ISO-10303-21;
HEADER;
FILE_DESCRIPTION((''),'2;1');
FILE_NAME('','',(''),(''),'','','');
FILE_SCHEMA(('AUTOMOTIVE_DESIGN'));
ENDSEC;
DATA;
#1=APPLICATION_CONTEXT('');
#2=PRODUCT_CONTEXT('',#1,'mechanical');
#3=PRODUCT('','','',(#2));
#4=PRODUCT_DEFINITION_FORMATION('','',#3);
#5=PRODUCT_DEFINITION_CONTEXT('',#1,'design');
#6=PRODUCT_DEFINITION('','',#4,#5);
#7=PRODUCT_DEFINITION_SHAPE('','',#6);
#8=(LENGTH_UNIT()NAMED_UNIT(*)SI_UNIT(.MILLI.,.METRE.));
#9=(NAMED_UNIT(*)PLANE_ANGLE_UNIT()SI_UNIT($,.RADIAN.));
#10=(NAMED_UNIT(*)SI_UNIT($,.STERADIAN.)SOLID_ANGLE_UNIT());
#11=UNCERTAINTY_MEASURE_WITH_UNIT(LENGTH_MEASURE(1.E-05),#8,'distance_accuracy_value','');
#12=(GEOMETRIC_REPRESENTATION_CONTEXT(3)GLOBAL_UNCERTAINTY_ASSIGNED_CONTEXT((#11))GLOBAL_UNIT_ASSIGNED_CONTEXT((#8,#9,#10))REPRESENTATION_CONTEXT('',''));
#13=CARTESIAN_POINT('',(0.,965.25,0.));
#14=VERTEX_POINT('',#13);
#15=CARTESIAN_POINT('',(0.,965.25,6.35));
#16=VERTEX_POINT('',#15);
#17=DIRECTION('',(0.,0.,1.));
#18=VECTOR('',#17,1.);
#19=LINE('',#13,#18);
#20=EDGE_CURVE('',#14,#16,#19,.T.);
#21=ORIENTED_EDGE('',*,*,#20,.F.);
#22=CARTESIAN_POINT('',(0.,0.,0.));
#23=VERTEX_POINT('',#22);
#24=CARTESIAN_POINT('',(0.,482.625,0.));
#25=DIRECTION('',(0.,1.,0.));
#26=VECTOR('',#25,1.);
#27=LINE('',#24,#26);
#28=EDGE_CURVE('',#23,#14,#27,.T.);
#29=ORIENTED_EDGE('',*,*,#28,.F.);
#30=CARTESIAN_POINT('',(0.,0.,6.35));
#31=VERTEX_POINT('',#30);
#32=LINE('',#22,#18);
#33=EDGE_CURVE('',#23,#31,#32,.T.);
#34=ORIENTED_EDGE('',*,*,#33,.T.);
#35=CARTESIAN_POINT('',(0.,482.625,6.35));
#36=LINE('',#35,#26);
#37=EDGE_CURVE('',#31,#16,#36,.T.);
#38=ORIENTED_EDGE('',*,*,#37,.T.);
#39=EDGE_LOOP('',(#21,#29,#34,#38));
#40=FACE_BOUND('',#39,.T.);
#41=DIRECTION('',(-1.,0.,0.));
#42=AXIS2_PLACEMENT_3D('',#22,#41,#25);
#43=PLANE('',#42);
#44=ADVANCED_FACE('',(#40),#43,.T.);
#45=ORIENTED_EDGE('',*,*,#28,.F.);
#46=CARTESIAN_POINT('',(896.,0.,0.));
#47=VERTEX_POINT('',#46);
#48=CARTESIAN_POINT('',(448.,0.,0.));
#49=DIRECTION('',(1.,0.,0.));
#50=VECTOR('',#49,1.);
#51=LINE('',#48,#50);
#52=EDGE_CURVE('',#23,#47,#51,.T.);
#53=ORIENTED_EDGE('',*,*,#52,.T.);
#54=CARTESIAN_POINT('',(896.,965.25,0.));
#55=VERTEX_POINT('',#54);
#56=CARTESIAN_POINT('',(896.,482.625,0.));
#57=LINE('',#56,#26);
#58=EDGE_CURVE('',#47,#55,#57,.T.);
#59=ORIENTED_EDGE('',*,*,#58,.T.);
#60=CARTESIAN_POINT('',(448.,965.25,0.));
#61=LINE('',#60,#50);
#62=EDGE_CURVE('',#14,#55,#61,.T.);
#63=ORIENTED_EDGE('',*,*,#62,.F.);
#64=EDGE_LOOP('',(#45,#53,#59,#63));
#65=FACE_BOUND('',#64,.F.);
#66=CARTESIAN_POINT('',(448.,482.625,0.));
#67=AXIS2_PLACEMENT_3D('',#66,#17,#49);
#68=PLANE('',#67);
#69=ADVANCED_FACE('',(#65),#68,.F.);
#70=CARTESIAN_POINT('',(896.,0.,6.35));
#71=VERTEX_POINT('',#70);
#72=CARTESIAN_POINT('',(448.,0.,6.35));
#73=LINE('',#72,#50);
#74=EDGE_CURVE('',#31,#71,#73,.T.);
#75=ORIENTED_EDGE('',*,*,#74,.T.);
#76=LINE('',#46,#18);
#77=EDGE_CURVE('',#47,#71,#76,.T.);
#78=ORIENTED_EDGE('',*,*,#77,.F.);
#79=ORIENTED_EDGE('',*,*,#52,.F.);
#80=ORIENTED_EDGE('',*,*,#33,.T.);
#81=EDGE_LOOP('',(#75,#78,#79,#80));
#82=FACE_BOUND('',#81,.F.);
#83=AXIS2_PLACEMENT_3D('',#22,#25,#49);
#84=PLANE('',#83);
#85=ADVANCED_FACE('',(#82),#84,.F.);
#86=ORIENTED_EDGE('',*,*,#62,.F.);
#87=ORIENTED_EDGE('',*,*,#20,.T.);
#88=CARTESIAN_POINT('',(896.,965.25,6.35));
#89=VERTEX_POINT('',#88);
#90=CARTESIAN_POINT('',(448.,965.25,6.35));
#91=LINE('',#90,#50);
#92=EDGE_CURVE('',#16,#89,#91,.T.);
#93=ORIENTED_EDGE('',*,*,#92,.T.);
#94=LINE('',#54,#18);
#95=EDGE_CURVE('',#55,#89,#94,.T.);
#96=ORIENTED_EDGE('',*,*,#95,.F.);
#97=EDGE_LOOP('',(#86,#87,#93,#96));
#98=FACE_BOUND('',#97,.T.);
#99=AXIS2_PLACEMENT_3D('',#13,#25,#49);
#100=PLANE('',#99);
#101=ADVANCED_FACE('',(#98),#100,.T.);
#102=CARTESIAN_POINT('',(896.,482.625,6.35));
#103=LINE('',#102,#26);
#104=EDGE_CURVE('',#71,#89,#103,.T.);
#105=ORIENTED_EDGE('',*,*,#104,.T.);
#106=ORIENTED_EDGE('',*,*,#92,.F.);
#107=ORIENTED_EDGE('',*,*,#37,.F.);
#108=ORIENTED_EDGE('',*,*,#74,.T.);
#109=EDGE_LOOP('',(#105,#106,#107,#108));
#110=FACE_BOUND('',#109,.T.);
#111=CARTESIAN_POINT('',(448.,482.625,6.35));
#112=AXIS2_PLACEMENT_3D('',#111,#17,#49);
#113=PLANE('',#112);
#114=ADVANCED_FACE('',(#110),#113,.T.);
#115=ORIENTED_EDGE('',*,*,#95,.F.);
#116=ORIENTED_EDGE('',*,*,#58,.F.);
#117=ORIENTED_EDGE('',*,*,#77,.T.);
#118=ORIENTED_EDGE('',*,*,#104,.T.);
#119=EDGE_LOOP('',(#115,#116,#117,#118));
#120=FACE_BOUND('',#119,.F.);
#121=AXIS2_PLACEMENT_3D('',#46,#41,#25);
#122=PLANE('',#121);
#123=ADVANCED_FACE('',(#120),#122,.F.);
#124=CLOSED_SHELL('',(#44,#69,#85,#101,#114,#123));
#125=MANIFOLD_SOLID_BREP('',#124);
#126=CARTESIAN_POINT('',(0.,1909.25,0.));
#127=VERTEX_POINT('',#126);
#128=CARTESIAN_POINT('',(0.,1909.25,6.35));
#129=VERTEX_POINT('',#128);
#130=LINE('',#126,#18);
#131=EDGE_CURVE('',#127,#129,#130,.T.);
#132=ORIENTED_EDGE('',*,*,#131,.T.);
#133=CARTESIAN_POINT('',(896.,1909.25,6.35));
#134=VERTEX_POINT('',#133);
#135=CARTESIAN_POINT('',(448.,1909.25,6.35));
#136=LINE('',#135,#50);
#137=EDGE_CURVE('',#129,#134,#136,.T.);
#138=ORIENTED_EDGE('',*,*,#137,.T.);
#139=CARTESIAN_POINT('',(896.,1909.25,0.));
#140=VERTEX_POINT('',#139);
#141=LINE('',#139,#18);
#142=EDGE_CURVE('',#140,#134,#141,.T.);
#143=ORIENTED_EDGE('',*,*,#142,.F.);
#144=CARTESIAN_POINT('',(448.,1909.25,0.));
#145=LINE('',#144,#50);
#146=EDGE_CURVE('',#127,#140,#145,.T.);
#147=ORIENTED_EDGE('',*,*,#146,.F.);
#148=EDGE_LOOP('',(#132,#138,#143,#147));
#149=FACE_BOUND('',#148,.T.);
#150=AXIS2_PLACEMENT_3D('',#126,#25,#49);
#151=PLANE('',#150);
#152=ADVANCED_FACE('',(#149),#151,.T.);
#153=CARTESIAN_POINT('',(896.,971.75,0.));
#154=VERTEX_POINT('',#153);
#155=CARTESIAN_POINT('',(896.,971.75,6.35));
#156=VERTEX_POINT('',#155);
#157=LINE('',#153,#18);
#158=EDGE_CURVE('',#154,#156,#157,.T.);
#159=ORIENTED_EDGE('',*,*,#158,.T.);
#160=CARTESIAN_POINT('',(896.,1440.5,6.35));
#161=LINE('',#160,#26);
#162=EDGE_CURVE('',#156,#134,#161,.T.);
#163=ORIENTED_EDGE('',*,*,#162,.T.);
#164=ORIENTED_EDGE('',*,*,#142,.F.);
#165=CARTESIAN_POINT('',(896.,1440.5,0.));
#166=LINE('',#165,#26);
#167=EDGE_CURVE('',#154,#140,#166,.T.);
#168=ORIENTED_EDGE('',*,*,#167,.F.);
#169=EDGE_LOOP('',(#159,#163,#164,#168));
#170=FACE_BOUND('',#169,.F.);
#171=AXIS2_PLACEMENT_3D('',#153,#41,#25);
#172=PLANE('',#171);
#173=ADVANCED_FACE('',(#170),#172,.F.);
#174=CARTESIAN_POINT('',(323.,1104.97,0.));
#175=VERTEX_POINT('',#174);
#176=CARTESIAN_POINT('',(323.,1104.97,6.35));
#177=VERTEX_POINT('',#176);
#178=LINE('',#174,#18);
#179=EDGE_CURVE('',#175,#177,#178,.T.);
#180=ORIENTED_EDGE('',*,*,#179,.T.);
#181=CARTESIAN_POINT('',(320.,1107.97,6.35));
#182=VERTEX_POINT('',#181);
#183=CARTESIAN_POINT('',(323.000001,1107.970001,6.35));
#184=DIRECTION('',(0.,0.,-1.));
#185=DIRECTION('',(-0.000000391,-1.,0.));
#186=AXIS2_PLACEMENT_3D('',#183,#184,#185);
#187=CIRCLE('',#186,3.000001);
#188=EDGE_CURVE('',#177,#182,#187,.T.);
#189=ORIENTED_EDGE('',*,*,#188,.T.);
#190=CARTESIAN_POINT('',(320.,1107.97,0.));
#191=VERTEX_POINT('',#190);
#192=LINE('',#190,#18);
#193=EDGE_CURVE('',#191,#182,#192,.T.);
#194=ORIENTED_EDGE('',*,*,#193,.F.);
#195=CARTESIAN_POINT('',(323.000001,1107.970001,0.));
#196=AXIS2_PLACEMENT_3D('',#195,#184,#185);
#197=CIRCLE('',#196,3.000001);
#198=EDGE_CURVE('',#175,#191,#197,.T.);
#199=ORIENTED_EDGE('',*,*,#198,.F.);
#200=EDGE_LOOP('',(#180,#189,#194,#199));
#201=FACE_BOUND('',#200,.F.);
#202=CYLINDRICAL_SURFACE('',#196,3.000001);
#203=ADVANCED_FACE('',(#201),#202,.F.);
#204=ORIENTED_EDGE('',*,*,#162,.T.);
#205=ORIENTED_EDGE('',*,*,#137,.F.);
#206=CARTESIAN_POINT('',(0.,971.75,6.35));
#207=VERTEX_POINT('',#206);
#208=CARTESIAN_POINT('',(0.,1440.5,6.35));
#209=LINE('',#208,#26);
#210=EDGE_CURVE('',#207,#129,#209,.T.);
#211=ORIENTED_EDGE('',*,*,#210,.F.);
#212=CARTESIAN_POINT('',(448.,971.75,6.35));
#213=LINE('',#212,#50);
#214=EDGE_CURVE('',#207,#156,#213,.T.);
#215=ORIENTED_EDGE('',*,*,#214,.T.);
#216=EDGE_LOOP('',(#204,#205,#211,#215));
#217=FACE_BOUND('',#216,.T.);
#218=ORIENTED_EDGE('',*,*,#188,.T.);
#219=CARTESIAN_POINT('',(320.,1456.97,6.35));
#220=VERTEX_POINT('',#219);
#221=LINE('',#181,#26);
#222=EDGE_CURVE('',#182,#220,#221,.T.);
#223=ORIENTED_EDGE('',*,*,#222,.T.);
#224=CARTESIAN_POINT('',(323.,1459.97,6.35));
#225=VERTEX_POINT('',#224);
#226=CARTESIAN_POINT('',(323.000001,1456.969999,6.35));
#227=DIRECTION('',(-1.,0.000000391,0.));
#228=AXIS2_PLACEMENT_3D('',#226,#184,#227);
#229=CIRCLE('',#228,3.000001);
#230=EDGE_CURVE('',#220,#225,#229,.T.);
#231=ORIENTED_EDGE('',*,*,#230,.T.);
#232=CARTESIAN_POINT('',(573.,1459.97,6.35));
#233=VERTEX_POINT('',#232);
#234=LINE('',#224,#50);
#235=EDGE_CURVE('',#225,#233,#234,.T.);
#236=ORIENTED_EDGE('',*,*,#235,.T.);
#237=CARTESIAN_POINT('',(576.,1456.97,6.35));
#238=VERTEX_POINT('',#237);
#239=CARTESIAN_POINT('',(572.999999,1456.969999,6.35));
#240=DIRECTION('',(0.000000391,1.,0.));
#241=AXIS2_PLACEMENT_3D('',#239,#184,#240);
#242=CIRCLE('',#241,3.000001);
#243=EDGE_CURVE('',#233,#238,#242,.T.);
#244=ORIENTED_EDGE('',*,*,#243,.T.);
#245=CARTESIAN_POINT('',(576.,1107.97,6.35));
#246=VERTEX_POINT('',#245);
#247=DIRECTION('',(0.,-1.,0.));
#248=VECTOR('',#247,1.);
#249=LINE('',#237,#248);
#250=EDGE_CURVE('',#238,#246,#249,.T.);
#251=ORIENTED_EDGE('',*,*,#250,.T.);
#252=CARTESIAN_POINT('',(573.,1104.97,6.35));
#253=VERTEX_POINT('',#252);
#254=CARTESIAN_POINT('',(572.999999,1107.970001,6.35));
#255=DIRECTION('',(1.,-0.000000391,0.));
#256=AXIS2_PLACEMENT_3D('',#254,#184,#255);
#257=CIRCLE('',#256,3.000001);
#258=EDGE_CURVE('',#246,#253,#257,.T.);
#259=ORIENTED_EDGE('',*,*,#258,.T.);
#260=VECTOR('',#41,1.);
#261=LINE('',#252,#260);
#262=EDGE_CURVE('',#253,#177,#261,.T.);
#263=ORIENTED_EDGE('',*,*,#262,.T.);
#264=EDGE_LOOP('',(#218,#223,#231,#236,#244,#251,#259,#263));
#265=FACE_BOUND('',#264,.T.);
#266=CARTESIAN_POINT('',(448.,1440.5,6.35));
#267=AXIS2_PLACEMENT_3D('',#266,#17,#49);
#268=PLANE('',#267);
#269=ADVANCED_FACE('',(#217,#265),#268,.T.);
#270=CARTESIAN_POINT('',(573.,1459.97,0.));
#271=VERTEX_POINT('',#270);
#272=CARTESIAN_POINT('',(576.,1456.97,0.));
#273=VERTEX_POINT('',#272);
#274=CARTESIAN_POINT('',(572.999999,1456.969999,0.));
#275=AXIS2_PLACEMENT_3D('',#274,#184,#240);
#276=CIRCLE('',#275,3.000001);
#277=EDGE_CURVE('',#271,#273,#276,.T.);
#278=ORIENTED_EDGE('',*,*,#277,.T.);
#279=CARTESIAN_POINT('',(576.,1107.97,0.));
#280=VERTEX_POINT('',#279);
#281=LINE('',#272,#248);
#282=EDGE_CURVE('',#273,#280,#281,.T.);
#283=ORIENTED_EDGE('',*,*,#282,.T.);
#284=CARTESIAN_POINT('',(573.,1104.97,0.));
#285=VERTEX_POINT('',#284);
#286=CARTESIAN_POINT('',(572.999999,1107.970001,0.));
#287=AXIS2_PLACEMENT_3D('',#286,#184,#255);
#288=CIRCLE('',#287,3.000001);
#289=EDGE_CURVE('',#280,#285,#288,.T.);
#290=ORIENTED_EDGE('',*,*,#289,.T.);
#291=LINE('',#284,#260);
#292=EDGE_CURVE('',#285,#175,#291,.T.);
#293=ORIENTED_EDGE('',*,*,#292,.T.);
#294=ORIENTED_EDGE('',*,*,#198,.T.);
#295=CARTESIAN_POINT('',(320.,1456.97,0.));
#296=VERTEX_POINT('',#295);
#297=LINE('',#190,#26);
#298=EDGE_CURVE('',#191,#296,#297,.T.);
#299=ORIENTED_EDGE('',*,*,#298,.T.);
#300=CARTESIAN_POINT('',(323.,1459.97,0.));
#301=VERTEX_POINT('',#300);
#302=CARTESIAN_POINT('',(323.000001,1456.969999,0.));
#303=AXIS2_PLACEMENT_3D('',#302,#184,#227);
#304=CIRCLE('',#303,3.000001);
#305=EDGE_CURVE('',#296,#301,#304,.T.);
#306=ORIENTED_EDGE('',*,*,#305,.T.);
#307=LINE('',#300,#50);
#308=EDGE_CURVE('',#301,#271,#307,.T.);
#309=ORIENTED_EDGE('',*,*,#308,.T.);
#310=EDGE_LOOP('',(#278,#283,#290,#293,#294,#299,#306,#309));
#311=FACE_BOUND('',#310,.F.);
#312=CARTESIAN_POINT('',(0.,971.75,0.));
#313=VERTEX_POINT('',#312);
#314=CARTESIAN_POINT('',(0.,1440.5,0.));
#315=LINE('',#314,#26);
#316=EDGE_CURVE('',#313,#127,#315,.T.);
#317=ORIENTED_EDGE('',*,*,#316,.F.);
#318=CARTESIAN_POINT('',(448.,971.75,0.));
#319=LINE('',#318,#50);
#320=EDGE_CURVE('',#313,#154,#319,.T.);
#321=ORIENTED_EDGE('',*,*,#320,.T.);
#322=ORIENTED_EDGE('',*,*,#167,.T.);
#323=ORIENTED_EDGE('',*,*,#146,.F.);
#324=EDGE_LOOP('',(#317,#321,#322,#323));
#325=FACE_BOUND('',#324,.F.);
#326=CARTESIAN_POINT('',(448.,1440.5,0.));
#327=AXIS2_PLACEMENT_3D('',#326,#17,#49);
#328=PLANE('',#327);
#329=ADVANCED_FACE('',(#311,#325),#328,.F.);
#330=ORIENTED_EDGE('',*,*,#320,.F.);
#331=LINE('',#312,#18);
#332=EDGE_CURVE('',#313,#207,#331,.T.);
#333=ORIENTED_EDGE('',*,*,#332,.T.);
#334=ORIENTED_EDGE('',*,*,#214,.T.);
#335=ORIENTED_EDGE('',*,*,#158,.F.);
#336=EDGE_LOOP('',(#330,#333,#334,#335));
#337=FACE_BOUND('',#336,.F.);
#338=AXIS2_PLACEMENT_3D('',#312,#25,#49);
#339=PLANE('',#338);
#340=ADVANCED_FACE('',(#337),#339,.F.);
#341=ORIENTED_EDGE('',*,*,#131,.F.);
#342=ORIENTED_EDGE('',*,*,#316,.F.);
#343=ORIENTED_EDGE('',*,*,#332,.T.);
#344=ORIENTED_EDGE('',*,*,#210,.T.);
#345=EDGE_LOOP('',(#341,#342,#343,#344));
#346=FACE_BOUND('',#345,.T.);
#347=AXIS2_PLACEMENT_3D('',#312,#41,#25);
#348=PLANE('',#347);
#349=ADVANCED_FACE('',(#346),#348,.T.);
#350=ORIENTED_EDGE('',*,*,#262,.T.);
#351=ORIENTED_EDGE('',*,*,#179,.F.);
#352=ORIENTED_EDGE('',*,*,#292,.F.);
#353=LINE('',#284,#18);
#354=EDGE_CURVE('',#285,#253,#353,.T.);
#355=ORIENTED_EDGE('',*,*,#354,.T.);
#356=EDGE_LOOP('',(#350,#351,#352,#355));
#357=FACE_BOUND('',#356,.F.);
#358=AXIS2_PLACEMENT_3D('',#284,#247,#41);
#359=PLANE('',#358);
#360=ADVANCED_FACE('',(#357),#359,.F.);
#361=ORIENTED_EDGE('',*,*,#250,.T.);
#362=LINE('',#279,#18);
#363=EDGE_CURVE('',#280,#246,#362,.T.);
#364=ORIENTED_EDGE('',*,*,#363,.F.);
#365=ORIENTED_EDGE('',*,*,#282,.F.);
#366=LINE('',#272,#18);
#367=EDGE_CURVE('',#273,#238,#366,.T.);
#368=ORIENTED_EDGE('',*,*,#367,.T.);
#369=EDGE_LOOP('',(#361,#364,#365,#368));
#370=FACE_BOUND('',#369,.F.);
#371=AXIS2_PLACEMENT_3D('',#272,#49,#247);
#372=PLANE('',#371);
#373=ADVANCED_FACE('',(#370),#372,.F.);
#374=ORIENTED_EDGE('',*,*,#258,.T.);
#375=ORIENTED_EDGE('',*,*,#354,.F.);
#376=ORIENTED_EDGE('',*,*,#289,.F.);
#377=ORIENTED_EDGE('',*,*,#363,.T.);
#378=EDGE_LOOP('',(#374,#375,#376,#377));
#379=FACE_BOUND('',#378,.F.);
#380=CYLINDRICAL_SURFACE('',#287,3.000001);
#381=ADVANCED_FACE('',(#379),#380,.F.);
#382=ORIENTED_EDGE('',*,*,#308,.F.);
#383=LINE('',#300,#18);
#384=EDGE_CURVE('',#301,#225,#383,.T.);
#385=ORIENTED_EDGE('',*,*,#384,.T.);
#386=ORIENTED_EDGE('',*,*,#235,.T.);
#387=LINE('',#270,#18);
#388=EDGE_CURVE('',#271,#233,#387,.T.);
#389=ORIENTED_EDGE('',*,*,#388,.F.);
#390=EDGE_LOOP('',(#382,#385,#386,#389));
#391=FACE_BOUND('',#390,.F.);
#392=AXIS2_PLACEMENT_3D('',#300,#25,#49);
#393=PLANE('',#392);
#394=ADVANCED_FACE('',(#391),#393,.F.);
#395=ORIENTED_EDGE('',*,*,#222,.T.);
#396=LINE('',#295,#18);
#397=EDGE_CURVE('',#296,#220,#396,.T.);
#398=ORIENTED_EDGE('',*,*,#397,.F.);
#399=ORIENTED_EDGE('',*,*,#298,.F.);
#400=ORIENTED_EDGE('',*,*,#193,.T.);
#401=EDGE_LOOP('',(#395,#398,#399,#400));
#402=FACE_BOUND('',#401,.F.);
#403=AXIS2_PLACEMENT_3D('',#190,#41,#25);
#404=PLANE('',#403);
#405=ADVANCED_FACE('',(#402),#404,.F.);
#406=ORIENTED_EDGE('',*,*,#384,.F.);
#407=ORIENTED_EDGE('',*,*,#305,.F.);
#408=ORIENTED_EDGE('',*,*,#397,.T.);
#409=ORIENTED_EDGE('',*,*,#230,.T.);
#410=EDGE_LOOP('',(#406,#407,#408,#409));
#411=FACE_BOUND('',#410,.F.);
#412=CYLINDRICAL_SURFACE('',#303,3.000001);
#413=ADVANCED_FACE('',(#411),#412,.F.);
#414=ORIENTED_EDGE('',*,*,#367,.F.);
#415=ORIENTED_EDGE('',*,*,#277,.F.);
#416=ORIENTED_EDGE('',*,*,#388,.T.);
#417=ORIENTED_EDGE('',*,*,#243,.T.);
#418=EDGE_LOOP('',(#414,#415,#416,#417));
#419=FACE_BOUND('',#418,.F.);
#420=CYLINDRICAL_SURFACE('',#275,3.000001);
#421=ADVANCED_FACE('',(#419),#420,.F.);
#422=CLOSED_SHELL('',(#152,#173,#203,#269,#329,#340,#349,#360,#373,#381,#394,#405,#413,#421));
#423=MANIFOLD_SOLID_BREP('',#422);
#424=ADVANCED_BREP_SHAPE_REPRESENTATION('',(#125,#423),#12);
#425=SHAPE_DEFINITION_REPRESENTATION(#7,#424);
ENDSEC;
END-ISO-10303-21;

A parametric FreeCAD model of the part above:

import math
import FreeCAD as App
import Part
import Sketcher
from FreeCAD import Vector


def add_polygon(sketch, points):
    """Adds a closed chain of lines whose ends are joined by coincident constraints."""
    first, n = sketch.GeometryCount, len(points)
    for a, b in zip(points, points[1:] + points[:1]):
        sketch.addGeometry(Part.LineSegment(App.Vector(*a, 0), App.Vector(*b, 0)), False)
    for i in range(n):
        sketch.addConstraint(Sketcher.Constraint("Coincident", first + i, 2, first + (i + 1) % n, 1))

doc = App.newDocument("Part")
body = doc.addObject("PartDesign::Body", "Body")

sketch1 = doc.addObject("Sketcher::SketchObject", "Sketch")
body.addObject(sketch1)
sketch1.AttachmentSupport = (doc.XY_Plane, [""])
sketch1.MapMode = "FlatFace"
add_polygon(sketch1, [(0, 965), (0, 0), (896, 0), (896, 965)])
sketch1.addConstraint(Sketcher.Constraint("Vertical", 0))
sketch1.addConstraint(Sketcher.Constraint("Horizontal", 1))
sketch1.addConstraint(Sketcher.Constraint("Vertical", 2))
sketch1.addConstraint(Sketcher.Constraint("Horizontal", 3))
sketch1.addConstraint(Sketcher.Constraint("Coincident", 0, 2, -1, 1))
sketch1.addConstraint(Sketcher.Constraint("DistanceX", 1, 1, 1, 2, 896.0))
sketch1.addConstraint(Sketcher.Constraint("DistanceY", 0, 2, 0, 1, 965.25))
pad1 = doc.addObject("PartDesign::Pad", "Pad")
body.addObject(pad1)
pad1.Profile = sketch1
pad1.Length = 6.35
body2 = doc.addObject("PartDesign::Body", "Body001")

sketch2 = doc.addObject("Sketcher::SketchObject", "Sketch001")
body2.addObject(sketch2)
sketch2.AttachmentSupport = (doc.getObject("XY_Plane001"), [""])
sketch2.MapMode = "FlatFace"
add_polygon(sketch2, [(0, 1909.2), (0, 971.8), (896, 971.8), (896, 1909.2)])
sketch2.addGeometry(Part.ArcOfCircle(Part.Circle(Vector(573, 1108, 0), Vector(0, 0, 1), 3), math.radians(-90), math.radians(0)), False)
sketch2.addGeometry(Part.LineSegment(Vector(573, 1105, 0), Vector(323, 1105, 0)), False)
sketch2.addGeometry(Part.ArcOfCircle(Part.Circle(Vector(323, 1108, 0), Vector(0, 0, 1), 3), math.radians(-180), math.radians(-90)), False)
sketch2.addGeometry(Part.LineSegment(Vector(320, 1108, 0), Vector(320, 1457, 0)), False)
sketch2.addGeometry(Part.ArcOfCircle(Part.Circle(Vector(323, 1457, 0), Vector(0, 0, 1), 3), math.radians(90), math.radians(180)), False)
sketch2.addGeometry(Part.LineSegment(Vector(323, 1460, 0), Vector(573, 1460, 0)), False)
sketch2.addGeometry(Part.ArcOfCircle(Part.Circle(Vector(573, 1457, 0), Vector(0, 0, 1), 3), math.radians(0), math.radians(90)), False)
sketch2.addGeometry(Part.LineSegment(Vector(576, 1457, 0), Vector(576, 1108, 0)), False)
sketch2.addConstraint(Sketcher.Constraint("Tangent", 4, 1, 5, 1))
sketch2.addConstraint(Sketcher.Constraint("Tangent", 5, 2, 6, 2))
sketch2.addConstraint(Sketcher.Constraint("Tangent", 6, 1, 7, 1))
sketch2.addConstraint(Sketcher.Constraint("Tangent", 7, 2, 8, 2))
sketch2.addConstraint(Sketcher.Constraint("Tangent", 8, 1, 9, 1))
sketch2.addConstraint(Sketcher.Constraint("Tangent", 9, 2, 10, 2))
sketch2.addConstraint(Sketcher.Constraint("Tangent", 10, 1, 11, 1))
sketch2.addConstraint(Sketcher.Constraint("Tangent", 11, 2, 4, 2))
sketch2.addConstraint(Sketcher.Constraint("Vertical", 0))
sketch2.addConstraint(Sketcher.Constraint("Horizontal", 1))
sketch2.addConstraint(Sketcher.Constraint("Vertical", 2))
sketch2.addConstraint(Sketcher.Constraint("Horizontal", 3))
sketch2.addConstraint(Sketcher.Constraint("Horizontal", 5))
sketch2.addConstraint(Sketcher.Constraint("Vertical", 7))
sketch2.addConstraint(Sketcher.Constraint("Horizontal", 9))
sketch2.addConstraint(Sketcher.Constraint("Vertical", 11))
sketch2.addConstraint(Sketcher.Constraint("Equal", 4, 6))
sketch2.addConstraint(Sketcher.Constraint("Equal", 6, 8))
sketch2.addConstraint(Sketcher.Constraint("Equal", 8, 10))
sketch2.addConstraint(Sketcher.Constraint("PointOnObject", 0, 2, -2))
sketch2.addConstraint(Sketcher.Constraint("Radius", 4, 3.000001))
sketch2.addConstraint(Sketcher.Constraint("DistanceX", 1, 1, 1, 2, 896.0))
sketch2.addConstraint(Sketcher.Constraint("DistanceX", 5, 2, 5, 1, 250.0))
sketch2.addConstraint(Sketcher.Constraint("DistanceY", 7, 1, 7, 2, 349.0))
sketch2.addConstraint(Sketcher.Constraint("DistanceY", 0, 2, 0, 1, 937.5))
sketch2.addConstraint(Sketcher.Constraint("DistanceX", -1, 1, 4, 3, 572.999999))
sketch2.addConstraint(Sketcher.Constraint("DistanceY", -1, 1, 4, 3, 1107.970001))
sketch2.addConstraint(Sketcher.Constraint("DistanceY", -1, 1, 0, 2, 971.75))
pad2 = doc.addObject("PartDesign::Pad", "Pad001")
body2.addObject(pad2)
pad2.Profile = sketch2
pad2.Length = 6.35

doc.recompute()
